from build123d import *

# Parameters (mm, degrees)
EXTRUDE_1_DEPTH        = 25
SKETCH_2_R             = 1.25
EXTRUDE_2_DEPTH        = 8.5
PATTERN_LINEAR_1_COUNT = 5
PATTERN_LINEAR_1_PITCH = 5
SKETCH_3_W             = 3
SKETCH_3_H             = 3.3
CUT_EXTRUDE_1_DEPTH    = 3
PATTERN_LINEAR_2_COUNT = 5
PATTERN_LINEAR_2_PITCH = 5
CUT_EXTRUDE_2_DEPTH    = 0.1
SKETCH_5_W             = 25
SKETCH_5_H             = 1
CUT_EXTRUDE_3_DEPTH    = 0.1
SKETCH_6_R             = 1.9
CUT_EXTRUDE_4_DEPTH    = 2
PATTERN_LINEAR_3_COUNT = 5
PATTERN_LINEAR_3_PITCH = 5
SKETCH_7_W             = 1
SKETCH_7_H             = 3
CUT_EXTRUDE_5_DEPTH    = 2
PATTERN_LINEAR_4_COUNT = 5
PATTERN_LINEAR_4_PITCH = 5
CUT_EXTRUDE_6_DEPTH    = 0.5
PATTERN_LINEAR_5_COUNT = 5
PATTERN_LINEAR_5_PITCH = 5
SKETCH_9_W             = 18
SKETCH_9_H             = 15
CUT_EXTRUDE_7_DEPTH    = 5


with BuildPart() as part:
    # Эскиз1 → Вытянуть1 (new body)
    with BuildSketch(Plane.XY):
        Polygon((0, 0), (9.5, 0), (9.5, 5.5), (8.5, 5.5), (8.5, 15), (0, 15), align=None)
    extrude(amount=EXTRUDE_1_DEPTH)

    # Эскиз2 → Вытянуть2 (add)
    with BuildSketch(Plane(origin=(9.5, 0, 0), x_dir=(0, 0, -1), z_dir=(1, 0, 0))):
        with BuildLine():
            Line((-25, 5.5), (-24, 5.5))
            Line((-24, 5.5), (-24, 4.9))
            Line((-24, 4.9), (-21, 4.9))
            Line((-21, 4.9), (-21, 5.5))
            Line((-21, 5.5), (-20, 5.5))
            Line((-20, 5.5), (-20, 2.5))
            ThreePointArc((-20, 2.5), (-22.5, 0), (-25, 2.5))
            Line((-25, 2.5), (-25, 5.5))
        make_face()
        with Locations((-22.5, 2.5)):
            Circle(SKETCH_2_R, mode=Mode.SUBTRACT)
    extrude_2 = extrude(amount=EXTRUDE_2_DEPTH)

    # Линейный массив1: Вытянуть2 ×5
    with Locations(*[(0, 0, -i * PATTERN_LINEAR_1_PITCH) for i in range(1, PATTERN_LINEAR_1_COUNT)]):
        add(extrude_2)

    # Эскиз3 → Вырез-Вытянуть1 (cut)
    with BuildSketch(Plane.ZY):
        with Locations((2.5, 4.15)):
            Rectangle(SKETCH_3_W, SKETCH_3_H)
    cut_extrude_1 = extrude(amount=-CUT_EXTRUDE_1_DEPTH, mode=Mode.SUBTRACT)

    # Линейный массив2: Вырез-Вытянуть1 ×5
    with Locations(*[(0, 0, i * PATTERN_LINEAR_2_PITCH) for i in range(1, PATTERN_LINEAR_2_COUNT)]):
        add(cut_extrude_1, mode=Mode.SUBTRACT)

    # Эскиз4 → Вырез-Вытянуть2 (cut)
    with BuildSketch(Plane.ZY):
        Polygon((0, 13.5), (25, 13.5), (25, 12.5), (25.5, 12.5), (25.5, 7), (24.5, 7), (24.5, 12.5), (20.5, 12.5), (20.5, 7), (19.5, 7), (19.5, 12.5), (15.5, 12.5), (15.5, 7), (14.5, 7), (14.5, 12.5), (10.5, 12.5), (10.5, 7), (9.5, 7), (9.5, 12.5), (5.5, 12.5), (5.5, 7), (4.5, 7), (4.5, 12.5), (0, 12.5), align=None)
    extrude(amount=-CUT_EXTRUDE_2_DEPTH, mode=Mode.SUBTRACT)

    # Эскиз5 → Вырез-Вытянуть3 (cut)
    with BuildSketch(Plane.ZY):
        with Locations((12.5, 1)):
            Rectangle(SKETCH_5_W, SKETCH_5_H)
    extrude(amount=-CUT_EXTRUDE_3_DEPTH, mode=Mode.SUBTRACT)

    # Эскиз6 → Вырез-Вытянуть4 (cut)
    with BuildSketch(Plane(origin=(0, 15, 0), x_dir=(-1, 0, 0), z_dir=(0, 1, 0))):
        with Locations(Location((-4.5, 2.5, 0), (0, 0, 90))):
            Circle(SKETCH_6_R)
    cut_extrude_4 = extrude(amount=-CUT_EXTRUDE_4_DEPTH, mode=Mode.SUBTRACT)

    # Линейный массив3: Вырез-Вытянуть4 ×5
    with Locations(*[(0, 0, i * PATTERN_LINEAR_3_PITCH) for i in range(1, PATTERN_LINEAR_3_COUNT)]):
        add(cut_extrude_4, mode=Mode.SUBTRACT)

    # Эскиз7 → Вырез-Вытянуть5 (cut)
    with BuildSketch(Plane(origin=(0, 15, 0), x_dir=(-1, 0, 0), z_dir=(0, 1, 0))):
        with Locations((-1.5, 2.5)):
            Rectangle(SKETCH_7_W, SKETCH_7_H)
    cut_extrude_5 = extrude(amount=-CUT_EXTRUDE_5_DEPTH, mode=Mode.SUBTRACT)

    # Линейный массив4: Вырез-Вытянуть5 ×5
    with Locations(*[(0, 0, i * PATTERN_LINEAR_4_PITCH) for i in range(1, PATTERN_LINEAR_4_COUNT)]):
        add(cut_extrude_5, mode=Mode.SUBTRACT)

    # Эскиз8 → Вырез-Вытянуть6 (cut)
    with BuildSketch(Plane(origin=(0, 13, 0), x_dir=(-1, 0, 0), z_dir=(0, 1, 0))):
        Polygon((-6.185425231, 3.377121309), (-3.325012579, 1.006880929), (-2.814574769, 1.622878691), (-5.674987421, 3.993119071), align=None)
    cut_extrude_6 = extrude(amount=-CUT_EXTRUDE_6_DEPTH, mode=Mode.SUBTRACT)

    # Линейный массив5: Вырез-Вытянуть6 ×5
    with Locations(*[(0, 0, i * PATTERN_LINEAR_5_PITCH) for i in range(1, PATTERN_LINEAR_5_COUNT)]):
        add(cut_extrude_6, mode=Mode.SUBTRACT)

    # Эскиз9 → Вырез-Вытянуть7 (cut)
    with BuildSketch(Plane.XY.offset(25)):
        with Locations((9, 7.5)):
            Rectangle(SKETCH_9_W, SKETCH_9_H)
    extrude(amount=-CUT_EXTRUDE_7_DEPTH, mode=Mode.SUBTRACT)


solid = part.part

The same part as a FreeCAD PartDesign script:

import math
import FreeCAD as App
import Part
import Sketcher

V = App.Vector
Q = App.Units.Quantity

doc = App.newDocument("Part")
params = doc.addObject("Spreadsheet::Sheet", "Params")
for row, (alias, value) in enumerate([
    ("sketch1_width", "1 mm"),
    ("sketch1_height", "15 mm"),
    ("sketch1_width2", "9.5 mm"),
    ("pad1_length", "25 mm"),
    ("sketch2_diameter", "2.5 mm"),
    ("sketch2_radius", "2.5 mm"),
    ("sketch2_width", "3 mm"),
    ("sketch2_width2", "0.6 mm"),
    ("pad2_length", "8.5 mm"),
    ("linearpattern_pitch", "5 mm"),
    ("sketch3_height", "3 mm"),
    ("sketch3_width", "3.3 mm"),
    ("pocket1_length", "3 mm"),
    ("linearpattern2_pitch", "5 mm"),
    ("sketch4_width", "1 mm"),
    ("sketch4_height", "25 mm"),
    ("sketch4_height2", "4 mm"),
    ("sketch4_width2", "5.5 mm"),
    ("sketch4_height3", "4.5 mm"),
    ("pocket2_length", "0.1 mm"),
    ("sketch5_width", "1 mm"),
    ("sketch5_height", "25 mm"),
    ("pocket3_length", "0.1 mm"),
    ("sketch6_diameter", "3.8 mm"),
    ("pocket4_length", "2 mm"),
    ("linearpattern3_pitch", "5 mm"),
    ("sketch7_width", "1 mm"),
    ("sketch7_height", "3 mm"),
    ("pocket5_length", "2 mm"),
    ("linearpattern4_pitch", "5 mm"),
    ("sketch8_length", "0.8 mm"),
    ("pocket6_length", "0.5 mm"),
    ("linearpattern5_pitch", "5 mm"),
    ("sketch9_width", "18 mm"),
    ("sketch9_height", "15 mm"),
    ("pocket7_length", "5 mm"),
], start=1):
    params.set(f"A{row}", alias)
    params.set(f"B{row}", "=" + value)
    params.setAlias(f"B{row}", alias)

body = doc.addObject("PartDesign::Body", "Body")

# Sketch on XY plane
sketch1 = body.newObject("Sketcher::SketchObject", "Sketch")
sketch1.AttachmentSupport = (doc.getObject("XY_Plane"), [""])
sketch1.MapMode = "FlatFace"
sketch1.addGeometry([
    Part.LineSegment(V(0, 0, 0), V(9.5, 0, 0)),  # 0
    Part.LineSegment(V(9.5, 0, 0), V(9.5, 5.5, 0)),  # 1
    Part.LineSegment(V(9.5, 5.5, 0), V(8.5, 5.5, 0)),  # 2
    Part.LineSegment(V(8.5, 5.5, 0), V(8.5, 15, 0)),  # 3
    Part.LineSegment(V(8.5, 15, 0), V(0, 15, 0)),  # 4
    Part.LineSegment(V(0, 15, 0), V(0, 0, 0)),  # 5
], False)
sketch1.addConstraint([
    Sketcher.Constraint("Coincident", 0, 2, 1, 1),
    Sketcher.Constraint("Coincident", 1, 2, 2, 1),
    Sketcher.Constraint("Coincident", 2, 2, 3, 1),
    Sketcher.Constraint("Coincident", 3, 2, 4, 1),
    Sketcher.Constraint("Coincident", 4, 2, 5, 1),
    Sketcher.Constraint("Coincident", 5, 2, 0, 1),
    Sketcher.Constraint("Horizontal", 0),
    Sketcher.Constraint("Vertical", 1),
    Sketcher.Constraint("Horizontal", 2),
    Sketcher.Constraint("Vertical", 3),
    Sketcher.Constraint("Horizontal", 4),
    Sketcher.Constraint("Vertical", 5),
    Sketcher.Constraint("Coincident", 5, 2, -1, 1),
    Sketcher.Constraint("Equal", 0, 3),
    Sketcher.Constraint("DistanceX", 2, 2, 2, 1, Q("1 mm")),
    Sketcher.Constraint("DistanceY", 5, 2, 5, 1, Q("15 mm")),
    Sketcher.Constraint("DistanceX", 0, 1, 0, 2, Q("9.5 mm")),
])
sketch1.setExpression("Constraints[14]", "Params.sketch1_width")
sketch1.setExpression("Constraints[15]", "Params.sketch1_height")
sketch1.setExpression("Constraints[16]", "Params.sketch1_width2")
pad1 = body.newObject("PartDesign::Pad", "Pad")
pad1.Profile = sketch1
pad1.setExpression("Length", "Params.pad1_length")

# Sketch on YZ plane
sketch2 = body.newObject("Sketcher::SketchObject", "Sketch001")
sketch2.AttachmentSupport = (doc.getObject("YZ_Plane"), [""])
sketch2.MapMode = "FlatFace"
sketch2.AttachmentOffset = App.Placement(V(0, 0, 9.5), App.Rotation())
sketch2.addGeometry([
    Part.LineSegment(V(5.5, 24, 0), V(5.5, 25, 0)),  # 0
    Part.LineSegment(V(5.5, 25, 0), V(2.5, 25, 0)),  # 1
    Part.ArcOfCircle(Part.Circle(V(2.5, 22.5, 0), V(0, 0, 1), 2.5), math.radians(90), math.radians(270)),  # 2
    Part.LineSegment(V(2.5, 20, 0), V(5.5, 20, 0)),  # 3
    Part.LineSegment(V(5.5, 20, 0), V(5.5, 21, 0)),  # 4
    Part.LineSegment(V(5.5, 21, 0), V(4.9, 21, 0)),  # 5
    Part.LineSegment(V(4.9, 21, 0), V(4.9, 24, 0)),  # 6
    Part.LineSegment(V(4.9, 24, 0), V(5.5, 24, 0)),  # 7
    Part.Circle(V(2.5, 22.5, 0), V(0, 0, 1), 1.2),  # 8
], False)
sketch2.addConstraint([
    Sketcher.Constraint("Coincident", 0, 2, 1, 1),
    Sketcher.Constraint("Tangent", 1, 2, 2, 1),
    Sketcher.Constraint("Tangent", 2, 2, 3, 1),
    Sketcher.Constraint("Coincident", 3, 2, 4, 1),
    Sketcher.Constraint("Coincident", 4, 2, 5, 1),
    Sketcher.Constraint("Coincident", 5, 2, 6, 1),
    Sketcher.Constraint("Coincident", 6, 2, 7, 1),
    Sketcher.Constraint("Coincident", 7, 2, 0, 1),
    Sketcher.Constraint("Vertical", 0),
    Sketcher.Constraint("Horizontal", 1),
    Sketcher.Constraint("Horizontal", 3),
    Sketcher.Constraint("Vertical", 4),
    Sketcher.Constraint("Horizontal", 5),
    Sketcher.Constraint("Vertical", 6),
    Sketcher.Constraint("Horizontal", 7),
    Sketcher.Constraint("Coincident", 8, 3, 2, 3),
    Sketcher.Constraint("Vertical", 0, 2, 3, 2),
    Sketcher.Constraint("Equal", 0, 4),
    Sketcher.Constraint("Equal", 3, 6),
    Sketcher.Constraint("Diameter", 8, Q("2.5 mm")),
    Sketcher.Constraint("Radius", 2, Q("2.5 mm")),
    Sketcher.Constraint("DistanceX", 1, 2, 1, 1, Q("3 mm")),
    Sketcher.Constraint("DistanceX", 5, 2, 5, 1, Q("0.6 mm")),
    Sketcher.Constraint("DistanceY", -1, 1, 0, 2, Q("25 mm")),
    Sketcher.Constraint("DistanceX", -1, 1, 2, 3, Q("2.5 mm")),
])
sketch2.setExpression("Constraints[19]", "Params.sketch2_diameter")
sketch2.setExpression("Constraints[20]", "Params.sketch2_radius")
sketch2.setExpression("Constraints[21]", "Params.sketch2_width")
sketch2.setExpression("Constraints[22]", "Params.sketch2_width2")
pad2 = body.newObject("PartDesign::Pad", "Pad001")
pad2.Profile = sketch2
pad2.setExpression("Length", "Params.pad2_length")
doc.recompute()

linearpattern = body.newObject("PartDesign::LinearPattern", "LinearPattern")
linearpattern.Originals = [pad2]
linearpattern.Direction = (doc.getObject("Z_Axis"), [""])
linearpattern.Mode = "offset"
linearpattern.setExpression("Offset", "Params.linearpattern_pitch")
linearpattern.Occurrences = 5
linearpattern.Reversed = True
body.Tip = linearpattern

# Sketch on YZ plane
sketch3 = body.newObject("Sketcher::SketchObject", "Sketch002")
sketch3.AttachmentSupport = (doc.getObject("YZ_Plane"), [""])
sketch3.MapMode = "FlatFace"
sketch3.addGeometry([
    Part.LineSegment(V(5.8, 1, 0), V(2.5, 1, 0)),
    Part.LineSegment(V(2.5, 1, 0), V(2.5, 4, 0)),
    Part.LineSegment(V(2.5, 4, 0), V(5.8, 4, 0)),
    Part.LineSegment(V(5.8, 4, 0), V(5.8, 1, 0)),
], False)
sketch3.addConstraint([
    Sketcher.Constraint("Coincident", 0, 2, 1, 1),
    Sketcher.Constraint("Coincident", 1, 2, 2, 1),
    Sketcher.Constraint("Coincident", 2, 2, 3, 1),
    Sketcher.Constraint("Coincident", 3, 2, 0, 1),
    Sketcher.Constraint("Horizontal", 0),
    Sketcher.Constraint("Vertical", 1),
    Sketcher.Constraint("Horizontal", 2),
    Sketcher.Constraint("Vertical", 3),
    Sketcher.Constraint("DistanceY", 1, 1, 1, 2, Q("3 mm")),
    Sketcher.Constraint("DistanceX", 0, 2, 0, 1, Q("3.3 mm")),
    Sketcher.Constraint("DistanceY", -1, 1, 0, 2, Q("1 mm")),
    Sketcher.Constraint("DistanceX", -1, 1, 0, 2, Q("2.5 mm")),
])
sketch3.setExpression("Constraints[8]", "Params.sketch3_height")
sketch3.setExpression("Constraints[9]", "Params.sketch3_width")
pocket1 = body.newObject("PartDesign::Pocket", "Pocket")
pocket1.Profile = sketch3
pocket1.setExpression("Length", "Params.pocket1_length")
pocket1.Reversed = True
doc.recompute()

linearpattern2 = body.newObject("PartDesign::LinearPattern", "LinearPattern001")
linearpattern2.Originals = [pocket1]
linearpattern2.Direction = (doc.getObject("Z_Axis"), [""])
linearpattern2.Mode = "offset"
linearpattern2.setExpression("Offset", "Params.linearpattern2_pitch")
linearpattern2.Occurrences = 5
body.Tip = linearpattern2

# Sketch on YZ plane
sketch4 = body.newObject("Sketcher::SketchObject", "Sketch003")
sketch4.AttachmentSupport = (doc.getObject("YZ_Plane"), [""])
sketch4.MapMode = "FlatFace"
sketch4.addGeometry([
    Part.LineSegment(V(13.5, 25, 0), V(13.5, 0, 0)),  # 0
    Part.LineSegment(V(13.5, 0, 0), V(12.5, 0, 0)),  # 1
    Part.LineSegment(V(12.5, 0, 0), V(12.5, 4.5, 0)),  # 2
    Part.LineSegment(V(12.5, 4.5, 0), V(7, 4.5, 0)),  # 3
    Part.LineSegment(V(7, 4.5, 0), V(7, 5.5, 0)),  # 4
    Part.LineSegment(V(7, 5.5, 0), V(12.5, 5.5, 0)),  # 5
    Part.LineSegment(V(12.5, 5.5, 0), V(12.5, 9.5, 0)),  # 6
    Part.LineSegment(V(12.5, 9.5, 0), V(7, 9.5, 0)),  # 7
    Part.LineSegment(V(7, 9.5, 0), V(7, 10.5, 0)),  # 8
    Part.LineSegment(V(7, 10.5, 0), V(12.5, 10.5, 0)),  # 9
    Part.LineSegment(V(12.5, 10.5, 0), V(12.5, 14.5, 0)),  # 10
    Part.LineSegment(V(12.5, 14.5, 0), V(7, 14.5, 0)),  # 11
    Part.LineSegment(V(7, 14.5, 0), V(7, 15.5, 0)),  # 12
    Part.LineSegment(V(7, 15.5, 0), V(12.5, 15.5, 0)),  # 13
    Part.LineSegment(V(12.5, 15.5, 0), V(12.5, 19.5, 0)),  # 14
    Part.LineSegment(V(12.5, 19.5, 0), V(7, 19.5, 0)),  # 15
    Part.LineSegment(V(7, 19.5, 0), V(7, 20.5, 0)),  # 16
    Part.LineSegment(V(7, 20.5, 0), V(12.5, 20.5, 0)),  # 17
    Part.LineSegment(V(12.5, 20.5, 0), V(12.5, 24.5, 0)),  # 18
    Part.LineSegment(V(12.5, 24.5, 0), V(7, 24.5, 0)),  # 19
    Part.LineSegment(V(7, 24.5, 0), V(7, 25.5, 0)),  # 20
    Part.LineSegment(V(7, 25.5, 0), V(12.5, 25.5, 0)),  # 21
    Part.LineSegment(V(12.5, 25.5, 0), V(12.5, 25, 0)),  # 22
    Part.LineSegment(V(12.5, 25, 0), V(13.5, 25, 0)),  # 23
], False)
sketch4.addConstraint([
    Sketcher.Constraint("Coincident", 0, 2, 1, 1),
    Sketcher.Constraint("Coincident", 1, 2, 2, 1),
    Sketcher.Constraint("Coincident", 2, 2, 3, 1),
    Sketcher.Constraint("Coincident", 3, 2, 4, 1),
    Sketcher.Constraint("Coincident", 4, 2, 5, 1),
    Sketcher.Constraint("Coincident", 5, 2, 6, 1),
    Sketcher.Constraint("Coincident", 6, 2, 7, 1),
    Sketcher.Constraint("Coincident", 7, 2, 8, 1),
    Sketcher.Constraint("Coincident", 8, 2, 9, 1),
    Sketcher.Constraint("Coincident", 9, 2, 10, 1),
    Sketcher.Constraint("Coincident", 10, 2, 11, 1),
    Sketcher.Constraint("Coincident", 11, 2, 12, 1),
    Sketcher.Constraint("Coincident", 12, 2, 13, 1),
    Sketcher.Constraint("Coincident", 13, 2, 14, 1),
    Sketcher.Constraint("Coincident", 14, 2, 15, 1),
    Sketcher.Constraint("Coincident", 15, 2, 16, 1),
    Sketcher.Constraint("Coincident", 16, 2, 17, 1),
    Sketcher.Constraint("Coincident", 17, 2, 18, 1),
    Sketcher.Constraint("Coincident", 18, 2, 19, 1),
    Sketcher.Constraint("Coincident", 19, 2, 20, 1),
    Sketcher.Constraint("Coincident", 20, 2, 21, 1),
    Sketcher.Constraint("Coincident", 21, 2, 22, 1),
    Sketcher.Constraint("Coincident", 22, 2, 23, 1),
    Sketcher.Constraint("Coincident", 23, 2, 0, 1),
    Sketcher.Constraint("Vertical", 0),
    Sketcher.Constraint("Horizontal", 1),
    Sketcher.Constraint("Vertical", 2),
    Sketcher.Constraint("Horizontal", 3),
    Sketcher.Constraint("Vertical", 4),
    Sketcher.Constraint("Horizontal", 5),
    Sketcher.Constraint("Vertical", 6),
    Sketcher.Constraint("Horizontal", 7),
    Sketcher.Constraint("Vertical", 8),
    Sketcher.Constraint("Horizontal", 9),
    Sketcher.Constraint("Vertical", 10),
    Sketcher.Constraint("Horizontal", 11),
    Sketcher.Constraint("Vertical", 12),
    Sketcher.Constraint("Horizontal", 13),
    Sketcher.Constraint("Vertical", 14),
    Sketcher.Constraint("Horizontal", 15),
    Sketcher.Constraint("Vertical", 16),
    Sketcher.Constraint("Horizontal", 17),
    Sketcher.Constraint("Vertical", 18),
    Sketcher.Constraint("Horizontal", 19),
    Sketcher.Constraint("Vertical", 20),
    Sketcher.Constraint("Horizontal", 21),
    Sketcher.Constraint("Vertical", 22),
    Sketcher.Constraint("Horizontal", 23),
    Sketcher.Constraint("PointOnObject", 0, 2, -1),
    Sketcher.Constraint("Vertical", 2, 2, 5, 2),
    Sketcher.Constraint("Vertical", 4, 2, 7, 2),
    Sketcher.Constraint("Vertical", 6, 2, 9, 2),
    Sketcher.Constraint("Vertical", 8, 2, 11, 2),
    Sketcher.Constraint("Vertical", 10, 2, 13, 2),
    Sketcher.Constraint("Vertical", 12, 2, 15, 2),
    Sketcher.Constraint("Vertical", 14, 2, 17, 2),
    Sketcher.Constraint("Vertical", 16, 2, 19, 2),
    Sketcher.Constraint("Vertical", 18, 2, 21, 2),
    Sketcher.Constraint("Equal", 23, 4),
    Sketcher.Constraint("Equal", 4, 8),
    Sketcher.Constraint("Equal", 6, 10),
    Sketcher.Constraint("Equal", 8, 12),
    Sketcher.Constraint("Equal", 10, 14),
    Sketcher.Constraint("Equal", 12, 16),
    Sketcher.Constraint("Equal", 14, 18),
    Sketcher.Constraint("Equal", 16, 20),
    Sketcher.Constraint("DistanceX", 1, 2, 1, 1, Q("1 mm")),
    Sketcher.Constraint("DistanceY", 0, 2, 0, 1, Q("25 mm")),
    Sketcher.Constraint("DistanceY", 6, 1, 6, 2, Q("4 mm")),
    Sketcher.Constraint("DistanceX", 3, 2, 3, 1, Q("5.5 mm")),
    Sketcher.Constraint("DistanceY", 2, 1, 2, 2, Q("4.5 mm")),
    Sketcher.Constraint("DistanceX", -1, 1, 3, 2, Q("7 mm")),
])
sketch4.setExpression("Constraints[66]", "Params.sketch4_width")
sketch4.setExpression("Constraints[67]", "Params.sketch4_height")
sketch4.setExpression("Constraints[68]", "Params.sketch4_height2")
sketch4.setExpression("Constraints[69]", "Params.sketch4_width2")
sketch4.setExpression("Constraints[70]", "Params.sketch4_height3")
pocket2 = body.newObject("PartDesign::Pocket", "Pocket001")
pocket2.Profile = sketch4
pocket2.setExpression("Length", "Params.pocket2_length")
pocket2.Reversed = True

# Sketch on YZ plane
sketch5 = body.newObject("Sketcher::SketchObject", "Sketch004")
sketch5.AttachmentSupport = (doc.getObject("YZ_Plane"), [""])
sketch5.MapMode = "FlatFace"
sketch5.addGeometry([
    Part.LineSegment(V(1.5, 0, 0), V(0.5, 0, 0)),
    Part.LineSegment(V(0.5, 0, 0), V(0.5, 25, 0)),
    Part.LineSegment(V(0.5, 25, 0), V(1.5, 25, 0)),
    Part.LineSegment(V(1.5, 25, 0), V(1.5, 0, 0)),
], False)
sketch5.addConstraint([
    Sketcher.Constraint("Coincident", 0, 2, 1, 1),
    Sketcher.Constraint("Coincident", 1, 2, 2, 1),
    Sketcher.Constraint("Coincident", 2, 2, 3, 1),
    Sketcher.Constraint("Coincident", 3, 2, 0, 1),
    Sketcher.Constraint("Horizontal", 0),
    Sketcher.Constraint("Vertical", 1),
    Sketcher.Constraint("Horizontal", 2),
    Sketcher.Constraint("Vertical", 3),
    Sketcher.Constraint("PointOnObject", 0, 2, -1),
    Sketcher.Constraint("DistanceX", 0, 2, 0, 1, Q("1 mm")),
    Sketcher.Constraint("DistanceY", 1, 1, 1, 2, Q("25 mm")),
    Sketcher.Constraint("DistanceX", -1, 1, 0, 2, Q("0.5 mm")),
])
sketch5.setExpression("Constraints[9]", "Params.sketch5_width")
sketch5.setExpression("Constraints[10]", "Params.sketch5_height")
pocket3 = body.newObject("PartDesign::Pocket", "Pocket002")
pocket3.Profile = sketch5
pocket3.setExpression("Length", "Params.pocket3_length")
pocket3.Reversed = True

# Sketch on XZ plane
sketch6 = body.newObject("Sketcher::SketchObject", "Sketch005")
sketch6.AttachmentSupport = (doc.getObject("XZ_Plane"), [""])
sketch6.MapMode = "FlatFace"
sketch6.AttachmentOffset = App.Placement(V(0, 0, -15), App.Rotation())
sketch6.addGeometry(Part.Circle(V(4.5, 2.5, 0), V(0, 0, 1), 1.9), False)
sketch6.addConstraint([
    Sketcher.Constraint("Diameter", 0, Q("3.8 mm")),
    Sketcher.Constraint("DistanceX", -1, 1, 0, 3, Q("4.5 mm")),
    Sketcher.Constraint("DistanceY", -1, 1, 0, 3, Q("2.5 mm")),
])
sketch6.setExpression("Constraints[0]", "Params.sketch6_diameter")
pocket4 = body.newObject("PartDesign::Pocket", "Pocket003")
pocket4.Profile = sketch6
pocket4.setExpression("Length", "Params.pocket4_length")
pocket4.Reversed = True
doc.recompute()

linearpattern3 = body.newObject("PartDesign::LinearPattern", "LinearPattern002")
linearpattern3.Originals = [pocket4]
linearpattern3.Direction = (doc.getObject("Z_Axis"), [""])
linearpattern3.Mode = "offset"
linearpattern3.setExpression("Offset", "Params.linearpattern3_pitch")
linearpattern3.Occurrences = 5
body.Tip = linearpattern3

# Sketch on XZ plane
sketch7 = body.newObject("Sketcher::SketchObject", "Sketch006")
sketch7.AttachmentSupport = (doc.getObject("XZ_Plane"), [""])
sketch7.MapMode = "FlatFace"
sketch7.AttachmentOffset = App.Placement(V(0, 0, -15), App.Rotation())
sketch7.addGeometry([
    Part.LineSegment(V(2, 4, 0), V(2, 1, 0)),
    Part.LineSegment(V(2, 1, 0), V(1, 1, 0)),
    Part.LineSegment(V(1, 1, 0), V(1, 4, 0)),
    Part.LineSegment(V(1, 4, 0), V(2, 4, 0)),
], False)
sketch7.addConstraint([
    Sketcher.Constraint("Coincident", 0, 2, 1, 1),
    Sketcher.Constraint("Coincident", 1, 2, 2, 1),
    Sketcher.Constraint("Coincident", 2, 2, 3, 1),
    Sketcher.Constraint("Coincident", 3, 2, 0, 1),
    Sketcher.Constraint("Vertical", 0),
    Sketcher.Constraint("Horizontal", 1),
    Sketcher.Constraint("Vertical", 2),
    Sketcher.Constraint("Horizontal", 3),
    Sketcher.Constraint("DistanceX", 1, 2, 1, 1, Q("1 mm")),
    Sketcher.Constraint("DistanceY", 0, 2, 0, 1, Q("3 mm")),
    Sketcher.Constraint("DistanceX", -1, 1, 0, 2, Q("2 mm")),
    Sketcher.Constraint("DistanceY", -1, 1, 0, 2, Q("1 mm")),
])
sketch7.setExpression("Constraints[8]", "Params.sketch7_width")
sketch7.setExpression("Constraints[9]", "Params.sketch7_height")
pocket5 = body.newObject("PartDesign::Pocket", "Pocket004")
pocket5.Profile = sketch7
pocket5.setExpression("Length", "Params.pocket5_length")
pocket5.Reversed = True
doc.recompute()

linearpattern4 = body.newObject("PartDesign::LinearPattern", "LinearPattern003")
linearpattern4.Originals = [pocket5]
linearpattern4.Direction = (doc.getObject("Z_Axis"), [""])
linearpattern4.Mode = "offset"
linearpattern4.setExpression("Offset", "Params.linearpattern4_pitch")
linearpattern4.Occurrences = 5
body.Tip = linearpattern4

# Sketch on XZ plane
sketch8 = body.newObject("Sketcher::SketchObject", "Sketch007")
sketch8.AttachmentSupport = (doc.getObject("XZ_Plane"), [""])
sketch8.MapMode = "FlatFace"
sketch8.AttachmentOffset = App.Placement(V(0, 0, -13), App.Rotation())
sketch8.addGeometry([
    Part.LineSegment(V(6.2, 3.4, 0), V(3.3, 1, 0)),
    Part.LineSegment(V(3.3, 1, 0), V(2.8, 1.6, 0)),
    Part.LineSegment(V(2.8, 1.6, 0), V(5.7, 4, 0)),
    Part.LineSegment(V(5.7, 4, 0), V(6.2, 3.4, 0)),
], False)
sketch8.addConstraint([
    Sketcher.Constraint("Coincident", 0, 2, 1, 1),
    Sketcher.Constraint("Coincident", 1, 2, 2, 1),
    Sketcher.Constraint("Coincident", 2, 2, 3, 1),
    Sketcher.Constraint("Coincident", 3, 2, 0, 1),
    Sketcher.Constraint("Perpendicular", 0, 1),
    Sketcher.Constraint("Perpendicular", 1, 2),
    Sketcher.Constraint("Perpendicular", 2, 3),
    Sketcher.Constraint("Distance", 1, Q("0.8 mm")),
    Sketcher.Constraint("DistanceY", -1, 1, 0, 2, Q("1.006881 mm")),
    Sketcher.Constraint("DistanceY", -1, 1, 1, 2, Q("1.622879 mm")),
    Sketcher.Constraint("DistanceY", -1, 1, 2, 2, Q("3.993119 mm")),
    Sketcher.Constraint("DistanceX", -1, 1, 0, 2, Q("3.325013 mm")),
])
sketch8.setExpression("Constraints[7]", "Params.sketch8_length")
pocket6 = body.newObject("PartDesign::Pocket", "Pocket005")
pocket6.Profile = sketch8
pocket6.setExpression("Length", "Params.pocket6_length")
pocket6.Reversed = True
doc.recompute()

linearpattern5 = body.newObject("PartDesign::LinearPattern", "LinearPattern004")
linearpattern5.Originals = [pocket6]
linearpattern5.Direction = (doc.getObject("Z_Axis"), [""])
linearpattern5.Mode = "offset"
linearpattern5.setExpression("Offset", "Params.linearpattern5_pitch")
linearpattern5.Occurrences = 5
body.Tip = linearpattern5

# Sketch on XY plane
sketch9 = body.newObject("Sketcher::SketchObject", "Sketch008")
sketch9.AttachmentSupport = (doc.getObject("XY_Plane"), [""])
sketch9.MapMode = "FlatFace"
sketch9.AttachmentOffset = App.Placement(V(0, 0, 25), App.Rotation())
sketch9.addGeometry([
    Part.LineSegment(V(0, 15, 0), V(0, 0, 0)),
    Part.LineSegment(V(0, 0, 0), V(18, 0, 0)),
    Part.LineSegment(V(18, 0, 0), V(18, 15, 0)),
    Part.LineSegment(V(18, 15, 0), V(0, 15, 0)),
], False)
sketch9.addConstraint([
    Sketcher.Constraint("Coincident", 0, 2, 1, 1),
    Sketcher.Constraint("Coincident", 1, 2, 2, 1),
    Sketcher.Constraint("Coincident", 2, 2, 3, 1),
    Sketcher.Constraint("Coincident", 3, 2, 0, 1),
    Sketcher.Constraint("Vertical", 0),
    Sketcher.Constraint("Horizontal", 1),
    Sketcher.Constraint("Vertical", 2),
    Sketcher.Constraint("Horizontal", 3),
    Sketcher.Constraint("Coincident", 0, 2, -1, 1),
    Sketcher.Constraint("DistanceX", 1, 1, 1, 2, Q("18 mm")),
    Sketcher.Constraint("DistanceY", 0, 2, 0, 1, Q("15 mm")),
])
sketch9.setExpression("Constraints[9]", "Params.sketch9_width")
sketch9.setExpression("Constraints[10]", "Params.sketch9_height")
pocket7 = body.newObject("PartDesign::Pocket", "Pocket006")
pocket7.Profile = sketch9
pocket7.setExpression("Length", "Params.pocket7_length")

doc.recompute()
